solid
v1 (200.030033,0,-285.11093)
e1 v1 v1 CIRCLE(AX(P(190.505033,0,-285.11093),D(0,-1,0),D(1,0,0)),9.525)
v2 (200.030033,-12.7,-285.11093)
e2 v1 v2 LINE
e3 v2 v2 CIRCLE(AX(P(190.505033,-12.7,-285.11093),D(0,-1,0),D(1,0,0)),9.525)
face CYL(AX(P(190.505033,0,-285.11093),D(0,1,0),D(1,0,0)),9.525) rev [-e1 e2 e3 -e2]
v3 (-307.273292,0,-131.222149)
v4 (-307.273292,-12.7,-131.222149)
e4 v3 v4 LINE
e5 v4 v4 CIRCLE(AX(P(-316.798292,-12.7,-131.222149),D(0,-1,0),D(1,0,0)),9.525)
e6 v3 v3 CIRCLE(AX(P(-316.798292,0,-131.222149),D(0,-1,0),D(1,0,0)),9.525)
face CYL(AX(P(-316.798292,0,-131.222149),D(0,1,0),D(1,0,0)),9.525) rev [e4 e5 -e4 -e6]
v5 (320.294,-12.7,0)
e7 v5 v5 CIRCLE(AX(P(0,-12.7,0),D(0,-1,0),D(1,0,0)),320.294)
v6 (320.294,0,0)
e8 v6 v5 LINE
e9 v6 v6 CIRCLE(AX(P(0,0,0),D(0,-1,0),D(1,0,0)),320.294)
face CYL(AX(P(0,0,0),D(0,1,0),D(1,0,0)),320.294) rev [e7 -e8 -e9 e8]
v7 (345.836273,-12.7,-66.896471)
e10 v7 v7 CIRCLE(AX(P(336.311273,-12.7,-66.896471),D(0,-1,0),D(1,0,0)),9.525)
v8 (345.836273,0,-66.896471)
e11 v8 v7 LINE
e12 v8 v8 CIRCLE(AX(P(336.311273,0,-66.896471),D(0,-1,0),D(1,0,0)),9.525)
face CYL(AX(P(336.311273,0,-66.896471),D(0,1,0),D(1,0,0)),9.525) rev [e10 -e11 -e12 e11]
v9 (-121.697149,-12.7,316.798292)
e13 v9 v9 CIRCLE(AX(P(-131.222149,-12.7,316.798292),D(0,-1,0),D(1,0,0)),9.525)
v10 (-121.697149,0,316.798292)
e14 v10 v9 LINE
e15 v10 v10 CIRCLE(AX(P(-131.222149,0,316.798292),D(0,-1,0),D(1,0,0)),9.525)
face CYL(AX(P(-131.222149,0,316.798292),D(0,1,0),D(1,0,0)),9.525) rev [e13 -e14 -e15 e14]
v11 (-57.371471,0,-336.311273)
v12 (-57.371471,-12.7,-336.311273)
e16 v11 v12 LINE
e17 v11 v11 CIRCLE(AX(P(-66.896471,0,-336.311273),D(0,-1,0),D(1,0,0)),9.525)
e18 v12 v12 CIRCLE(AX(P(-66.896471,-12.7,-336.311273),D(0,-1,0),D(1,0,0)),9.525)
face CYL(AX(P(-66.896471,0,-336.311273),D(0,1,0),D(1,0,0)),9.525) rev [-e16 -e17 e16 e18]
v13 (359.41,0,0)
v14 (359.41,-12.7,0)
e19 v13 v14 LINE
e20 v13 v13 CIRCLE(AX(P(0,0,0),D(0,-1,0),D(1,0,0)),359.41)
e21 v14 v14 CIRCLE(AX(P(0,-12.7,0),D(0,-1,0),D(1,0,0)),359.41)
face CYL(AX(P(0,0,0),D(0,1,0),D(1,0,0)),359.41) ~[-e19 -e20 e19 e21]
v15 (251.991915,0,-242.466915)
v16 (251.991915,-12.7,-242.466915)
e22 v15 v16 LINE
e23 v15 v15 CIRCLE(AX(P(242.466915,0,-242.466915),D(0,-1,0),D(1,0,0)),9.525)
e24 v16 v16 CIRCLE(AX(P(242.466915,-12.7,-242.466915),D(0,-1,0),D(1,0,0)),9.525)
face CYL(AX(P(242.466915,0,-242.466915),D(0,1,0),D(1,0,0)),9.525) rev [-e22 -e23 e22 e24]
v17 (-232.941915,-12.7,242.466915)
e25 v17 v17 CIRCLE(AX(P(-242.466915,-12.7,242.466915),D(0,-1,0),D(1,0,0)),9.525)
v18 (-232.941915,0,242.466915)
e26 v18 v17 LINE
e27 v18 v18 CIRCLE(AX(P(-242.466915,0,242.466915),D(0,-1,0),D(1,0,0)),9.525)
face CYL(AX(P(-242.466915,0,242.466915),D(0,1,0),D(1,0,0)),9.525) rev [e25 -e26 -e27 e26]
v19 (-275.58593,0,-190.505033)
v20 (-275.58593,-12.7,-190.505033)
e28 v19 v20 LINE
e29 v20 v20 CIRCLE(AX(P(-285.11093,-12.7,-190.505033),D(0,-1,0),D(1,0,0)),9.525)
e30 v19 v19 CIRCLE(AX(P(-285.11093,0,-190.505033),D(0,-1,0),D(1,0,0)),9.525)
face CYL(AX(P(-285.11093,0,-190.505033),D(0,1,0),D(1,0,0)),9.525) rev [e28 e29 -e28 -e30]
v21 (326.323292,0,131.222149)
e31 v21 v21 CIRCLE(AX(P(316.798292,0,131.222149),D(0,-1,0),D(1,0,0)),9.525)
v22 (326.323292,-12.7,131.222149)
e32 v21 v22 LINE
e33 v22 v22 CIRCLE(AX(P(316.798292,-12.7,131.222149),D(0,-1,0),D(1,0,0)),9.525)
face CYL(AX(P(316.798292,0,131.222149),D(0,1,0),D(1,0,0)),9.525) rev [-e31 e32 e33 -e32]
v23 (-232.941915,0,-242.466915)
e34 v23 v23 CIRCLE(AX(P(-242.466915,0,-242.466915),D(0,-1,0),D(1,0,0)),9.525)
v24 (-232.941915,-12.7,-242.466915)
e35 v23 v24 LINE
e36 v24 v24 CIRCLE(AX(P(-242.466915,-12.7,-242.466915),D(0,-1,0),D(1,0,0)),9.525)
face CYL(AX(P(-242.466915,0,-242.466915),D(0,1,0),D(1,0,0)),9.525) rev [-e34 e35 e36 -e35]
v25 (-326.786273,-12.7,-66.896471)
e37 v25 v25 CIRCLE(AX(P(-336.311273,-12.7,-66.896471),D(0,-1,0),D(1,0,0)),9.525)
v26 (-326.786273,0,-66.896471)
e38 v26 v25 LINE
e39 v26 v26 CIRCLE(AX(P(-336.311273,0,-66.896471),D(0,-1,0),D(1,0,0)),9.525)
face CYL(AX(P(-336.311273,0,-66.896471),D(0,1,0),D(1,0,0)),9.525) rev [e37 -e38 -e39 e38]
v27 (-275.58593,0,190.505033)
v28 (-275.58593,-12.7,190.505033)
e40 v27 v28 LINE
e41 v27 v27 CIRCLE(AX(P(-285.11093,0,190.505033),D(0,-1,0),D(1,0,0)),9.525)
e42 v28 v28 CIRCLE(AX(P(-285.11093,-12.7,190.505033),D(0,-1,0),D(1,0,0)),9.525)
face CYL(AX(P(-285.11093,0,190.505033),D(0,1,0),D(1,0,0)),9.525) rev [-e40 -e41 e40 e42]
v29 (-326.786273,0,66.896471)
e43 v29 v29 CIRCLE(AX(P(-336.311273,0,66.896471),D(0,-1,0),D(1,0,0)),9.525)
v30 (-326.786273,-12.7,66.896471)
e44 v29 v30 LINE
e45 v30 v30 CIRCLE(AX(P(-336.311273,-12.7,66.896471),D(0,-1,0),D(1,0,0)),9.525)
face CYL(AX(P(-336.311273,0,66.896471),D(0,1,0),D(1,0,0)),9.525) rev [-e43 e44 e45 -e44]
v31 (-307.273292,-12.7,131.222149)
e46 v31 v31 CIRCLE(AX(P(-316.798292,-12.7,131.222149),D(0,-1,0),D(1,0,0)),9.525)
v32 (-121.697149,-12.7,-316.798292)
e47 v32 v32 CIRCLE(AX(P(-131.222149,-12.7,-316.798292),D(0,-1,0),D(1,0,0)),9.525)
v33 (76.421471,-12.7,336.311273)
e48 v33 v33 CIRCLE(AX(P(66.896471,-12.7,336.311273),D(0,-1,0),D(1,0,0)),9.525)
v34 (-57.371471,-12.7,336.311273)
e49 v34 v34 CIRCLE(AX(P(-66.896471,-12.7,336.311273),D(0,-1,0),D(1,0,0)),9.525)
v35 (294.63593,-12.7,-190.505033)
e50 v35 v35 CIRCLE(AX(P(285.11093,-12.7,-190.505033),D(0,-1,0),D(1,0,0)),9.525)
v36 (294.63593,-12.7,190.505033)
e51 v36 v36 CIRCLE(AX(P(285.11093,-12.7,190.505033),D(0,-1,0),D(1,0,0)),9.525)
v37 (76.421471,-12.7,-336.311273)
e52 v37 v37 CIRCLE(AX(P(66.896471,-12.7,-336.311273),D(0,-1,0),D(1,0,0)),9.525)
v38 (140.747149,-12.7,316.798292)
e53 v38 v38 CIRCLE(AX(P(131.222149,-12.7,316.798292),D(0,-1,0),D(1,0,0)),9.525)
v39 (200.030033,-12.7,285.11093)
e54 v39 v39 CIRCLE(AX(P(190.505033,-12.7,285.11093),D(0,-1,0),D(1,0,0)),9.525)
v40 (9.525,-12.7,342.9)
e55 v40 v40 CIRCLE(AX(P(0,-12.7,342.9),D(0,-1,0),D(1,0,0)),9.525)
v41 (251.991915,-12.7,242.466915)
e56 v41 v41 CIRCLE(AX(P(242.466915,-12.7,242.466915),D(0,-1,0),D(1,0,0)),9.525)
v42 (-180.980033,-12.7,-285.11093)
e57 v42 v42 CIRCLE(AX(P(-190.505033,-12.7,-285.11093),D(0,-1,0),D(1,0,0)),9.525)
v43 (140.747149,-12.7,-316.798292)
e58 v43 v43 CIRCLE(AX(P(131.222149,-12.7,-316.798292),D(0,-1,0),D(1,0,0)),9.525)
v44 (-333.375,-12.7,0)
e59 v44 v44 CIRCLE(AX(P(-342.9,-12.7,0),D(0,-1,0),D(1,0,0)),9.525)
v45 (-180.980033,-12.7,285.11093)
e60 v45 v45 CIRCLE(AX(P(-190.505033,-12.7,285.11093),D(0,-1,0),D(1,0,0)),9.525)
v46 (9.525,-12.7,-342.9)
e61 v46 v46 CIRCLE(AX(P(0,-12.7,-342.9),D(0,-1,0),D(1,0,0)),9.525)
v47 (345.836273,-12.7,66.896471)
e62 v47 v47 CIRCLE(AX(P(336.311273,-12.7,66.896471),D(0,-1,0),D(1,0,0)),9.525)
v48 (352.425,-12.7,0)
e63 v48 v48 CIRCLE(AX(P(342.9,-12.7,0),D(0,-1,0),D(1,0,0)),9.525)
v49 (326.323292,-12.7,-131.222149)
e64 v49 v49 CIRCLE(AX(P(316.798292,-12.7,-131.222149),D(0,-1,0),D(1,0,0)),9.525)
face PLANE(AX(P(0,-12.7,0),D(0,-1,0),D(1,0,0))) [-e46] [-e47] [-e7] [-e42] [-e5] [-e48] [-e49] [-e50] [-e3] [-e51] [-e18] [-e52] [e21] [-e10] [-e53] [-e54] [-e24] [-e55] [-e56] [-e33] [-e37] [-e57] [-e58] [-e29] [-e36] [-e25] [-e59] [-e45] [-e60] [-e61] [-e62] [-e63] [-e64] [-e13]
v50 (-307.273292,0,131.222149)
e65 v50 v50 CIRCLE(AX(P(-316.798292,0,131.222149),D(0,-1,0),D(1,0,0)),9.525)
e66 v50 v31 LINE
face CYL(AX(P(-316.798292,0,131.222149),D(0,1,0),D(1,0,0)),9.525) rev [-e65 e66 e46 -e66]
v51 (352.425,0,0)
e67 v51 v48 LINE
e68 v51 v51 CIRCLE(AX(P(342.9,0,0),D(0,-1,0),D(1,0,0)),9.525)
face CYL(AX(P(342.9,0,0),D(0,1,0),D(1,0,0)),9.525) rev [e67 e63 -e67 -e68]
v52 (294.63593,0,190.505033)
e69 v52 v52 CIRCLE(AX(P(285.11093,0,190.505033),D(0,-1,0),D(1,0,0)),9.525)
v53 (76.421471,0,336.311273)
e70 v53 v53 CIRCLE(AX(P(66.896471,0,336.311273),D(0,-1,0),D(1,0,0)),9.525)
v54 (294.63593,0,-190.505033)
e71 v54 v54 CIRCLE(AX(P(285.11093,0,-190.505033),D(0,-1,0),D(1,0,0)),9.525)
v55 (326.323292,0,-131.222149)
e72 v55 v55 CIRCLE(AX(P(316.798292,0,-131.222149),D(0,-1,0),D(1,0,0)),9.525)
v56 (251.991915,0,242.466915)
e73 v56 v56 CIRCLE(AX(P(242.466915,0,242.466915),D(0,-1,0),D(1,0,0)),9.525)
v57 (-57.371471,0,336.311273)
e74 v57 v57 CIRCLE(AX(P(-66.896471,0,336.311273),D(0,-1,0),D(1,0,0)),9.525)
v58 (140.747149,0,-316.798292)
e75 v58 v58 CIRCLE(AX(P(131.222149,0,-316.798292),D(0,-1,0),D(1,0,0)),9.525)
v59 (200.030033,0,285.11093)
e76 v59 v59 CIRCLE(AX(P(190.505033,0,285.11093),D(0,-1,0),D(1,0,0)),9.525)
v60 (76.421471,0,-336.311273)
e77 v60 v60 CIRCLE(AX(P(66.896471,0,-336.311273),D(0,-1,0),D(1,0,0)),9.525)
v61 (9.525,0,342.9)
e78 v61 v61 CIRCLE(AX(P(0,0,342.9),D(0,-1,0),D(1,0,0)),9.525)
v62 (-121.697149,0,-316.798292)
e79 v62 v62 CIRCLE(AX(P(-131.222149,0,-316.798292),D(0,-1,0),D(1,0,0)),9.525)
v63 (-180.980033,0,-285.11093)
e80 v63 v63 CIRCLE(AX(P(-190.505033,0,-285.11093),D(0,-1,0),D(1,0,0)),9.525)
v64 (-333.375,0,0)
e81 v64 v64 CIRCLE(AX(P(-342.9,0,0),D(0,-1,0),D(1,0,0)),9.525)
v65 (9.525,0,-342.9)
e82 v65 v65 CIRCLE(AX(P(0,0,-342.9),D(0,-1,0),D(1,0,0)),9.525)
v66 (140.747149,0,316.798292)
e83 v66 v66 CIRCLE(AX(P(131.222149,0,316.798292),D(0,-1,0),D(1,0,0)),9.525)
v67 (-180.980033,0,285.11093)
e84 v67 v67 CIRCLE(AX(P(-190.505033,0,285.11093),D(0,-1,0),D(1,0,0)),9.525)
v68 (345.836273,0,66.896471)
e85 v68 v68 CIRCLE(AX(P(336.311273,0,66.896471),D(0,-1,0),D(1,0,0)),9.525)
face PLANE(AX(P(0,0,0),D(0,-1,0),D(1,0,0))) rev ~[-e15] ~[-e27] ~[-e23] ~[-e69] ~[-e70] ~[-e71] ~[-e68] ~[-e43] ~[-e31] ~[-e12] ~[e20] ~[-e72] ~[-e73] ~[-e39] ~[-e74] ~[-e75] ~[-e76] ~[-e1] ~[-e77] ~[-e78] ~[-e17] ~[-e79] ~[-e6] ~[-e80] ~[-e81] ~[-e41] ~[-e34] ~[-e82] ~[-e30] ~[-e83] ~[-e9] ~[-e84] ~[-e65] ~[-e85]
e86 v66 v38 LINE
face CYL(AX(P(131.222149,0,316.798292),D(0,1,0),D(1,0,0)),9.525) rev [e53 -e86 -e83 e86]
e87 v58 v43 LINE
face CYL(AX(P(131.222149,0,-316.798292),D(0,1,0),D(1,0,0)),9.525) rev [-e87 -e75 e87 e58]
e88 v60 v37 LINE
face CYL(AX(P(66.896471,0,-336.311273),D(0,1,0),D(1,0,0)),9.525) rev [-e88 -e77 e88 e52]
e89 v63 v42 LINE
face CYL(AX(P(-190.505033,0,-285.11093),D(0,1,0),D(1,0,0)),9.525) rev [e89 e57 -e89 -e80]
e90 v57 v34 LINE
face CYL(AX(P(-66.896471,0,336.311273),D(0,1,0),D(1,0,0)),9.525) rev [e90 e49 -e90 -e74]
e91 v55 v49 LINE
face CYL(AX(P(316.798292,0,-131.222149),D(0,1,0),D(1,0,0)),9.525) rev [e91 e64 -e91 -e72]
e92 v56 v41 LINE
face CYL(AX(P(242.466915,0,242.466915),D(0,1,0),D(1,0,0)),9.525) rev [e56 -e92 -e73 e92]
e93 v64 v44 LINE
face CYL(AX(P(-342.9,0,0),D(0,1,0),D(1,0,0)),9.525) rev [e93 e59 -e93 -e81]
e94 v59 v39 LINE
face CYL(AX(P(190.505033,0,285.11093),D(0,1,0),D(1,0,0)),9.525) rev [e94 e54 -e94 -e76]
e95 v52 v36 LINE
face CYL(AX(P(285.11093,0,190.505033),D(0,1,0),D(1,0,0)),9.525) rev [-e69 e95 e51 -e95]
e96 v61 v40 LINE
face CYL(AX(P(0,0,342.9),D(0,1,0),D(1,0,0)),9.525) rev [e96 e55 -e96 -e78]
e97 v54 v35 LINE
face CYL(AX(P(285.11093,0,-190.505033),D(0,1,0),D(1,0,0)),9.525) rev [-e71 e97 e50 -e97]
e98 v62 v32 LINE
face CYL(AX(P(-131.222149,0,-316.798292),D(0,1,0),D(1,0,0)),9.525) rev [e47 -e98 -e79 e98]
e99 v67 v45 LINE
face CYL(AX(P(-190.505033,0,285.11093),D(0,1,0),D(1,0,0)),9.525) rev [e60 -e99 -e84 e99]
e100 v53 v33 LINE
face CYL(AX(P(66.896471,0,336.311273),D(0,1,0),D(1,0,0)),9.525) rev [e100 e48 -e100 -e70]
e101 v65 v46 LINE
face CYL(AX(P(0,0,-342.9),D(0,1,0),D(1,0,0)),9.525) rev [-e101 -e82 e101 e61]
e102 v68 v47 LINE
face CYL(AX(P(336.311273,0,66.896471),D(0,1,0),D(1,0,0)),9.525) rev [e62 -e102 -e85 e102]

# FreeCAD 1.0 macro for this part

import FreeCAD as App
import Part
import Sketcher

V = App.Vector
Q = App.Units.Quantity

doc = App.newDocument("Part")
body = doc.addObject("PartDesign::Body", "Body")

# Sketch on XZ plane
sketch1 = body.newObject("Sketcher::SketchObject", "Sketch")
sketch1.AttachmentSupport = (doc.getObject("XZ_Plane"), [""])
sketch1.MapMode = "FlatFace"
sketch1.addGeometry([
    Part.Circle(V(0, 0, 0), V(0, 0, 1), 359),  # 0
    Part.Circle(V(-191, -285, 0), V(0, 0, 1), 10),  # 1
    Part.Circle(V(-285, -191, 0), V(0, 0, 1), 10),  # 2
    Part.Circle(V(-242, -242, 0), V(0, 0, 1), 10),  # 3
    Part.Circle(V(-131, -317, 0), V(0, 0, 1), 10),  # 4
    Part.Circle(V(-67, -336, 0), V(0, 0, 1), 10),  # 5
    Part.Circle(V(-317, -131, 0), V(0, 0, 1), 10),  # 6
    Part.Circle(V(-336, -67, 0), V(0, 0, 1), 10),  # 7
    Part.Circle(V(0, -343, 0), V(0, 0, 1), 10),  # 8
    Part.Circle(V(67, -336, 0), V(0, 0, 1), 10),  # 9
    Part.Circle(V(131, -317, 0), V(0, 0, 1), 10),  # 10
    Part.Circle(V(191, -285, 0), V(0, 0, 1), 10),  # 11
    Part.Circle(V(242, -242, 0), V(0, 0, 1), 10),  # 12
    Part.Circle(V(285, -191, 0), V(0, 0, 1), 10),  # 13
    Part.Circle(V(317, -131, 0), V(0, 0, 1), 10),  # 14
    Part.Circle(V(336, -67, 0), V(0, 0, 1), 10),  # 15
    Part.Circle(V(-343, 0, 0), V(0, 0, 1), 10),  # 16
    Part.Circle(V(-336, 67, 0), V(0, 0, 1), 10),  # 17
    Part.Circle(V(-317, 131, 0), V(0, 0, 1), 10),  # 18
    Part.Circle(V(-285, 191, 0), V(0, 0, 1), 10),  # 19
    Part.Circle(V(-242, 242, 0), V(0, 0, 1), 10),  # 20
    Part.Circle(V(-191, 285, 0), V(0, 0, 1), 10),  # 21
    Part.Circle(V(-131, 317, 0), V(0, 0, 1), 10),  # 22
    Part.Circle(V(-67, 336, 0), V(0, 0, 1), 10),  # 23
    Part.Circle(V(0, 0, 0), V(0, 0, 1), 320),  # 24
    Part.Circle(V(343, 0, 0), V(0, 0, 1), 10),  # 25
    Part.Circle(V(336, 67, 0), V(0, 0, 1), 10),  # 26
    Part.Circle(V(317, 131, 0), V(0, 0, 1), 10),  # 27
    Part.Circle(V(0, 343, 0), V(0, 0, 1), 10),  # 28
    Part.Circle(V(67, 336, 0), V(0, 0, 1), 10),  # 29
    Part.Circle(V(131, 317, 0), V(0, 0, 1), 10),  # 30
    Part.Circle(V(242, 242, 0), V(0, 0, 1), 10),  # 31
    Part.Circle(V(285, 191, 0), V(0, 0, 1), 10),  # 32
    Part.Circle(V(191, 285, 0), V(0, 0, 1), 10),  # 33
], False)
sketch1.addConstraint([
    Sketcher.Constraint("Coincident", 0, 3, -1, 1),
    Sketcher.Constraint("Coincident", 24, 3, -1, 1),
    Sketcher.Constraint("Equal", 1, 2),
    Sketcher.Constraint("Equal", 2, 3),
    Sketcher.Constraint("Equal", 3, 4),
    Sketcher.Constraint("Equal", 4, 5),
    Sketcher.Constraint("Equal", 5, 6),
    Sketcher.Constraint("Equal", 6, 7),
    Sketcher.Constraint("Equal", 7, 8),
    Sketcher.Constraint("Equal", 8, 9),
    Sketcher.Constraint("Equal", 9, 10),
    Sketcher.Constraint("Equal", 10, 11),
    Sketcher.Constraint("Equal", 11, 12),
    Sketcher.Constraint("Equal", 12, 13),
    Sketcher.Constraint("Equal", 13, 14),
    Sketcher.Constraint("Equal", 14, 15),
    Sketcher.Constraint("Equal", 15, 16),
    Sketcher.Constraint("Equal", 16, 17),
    Sketcher.Constraint("Equal", 17, 18),
    Sketcher.Constraint("Equal", 18, 19),
    Sketcher.Constraint("Equal", 19, 20),
    Sketcher.Constraint("Equal", 20, 21),
    Sketcher.Constraint("Equal", 21, 22),
    Sketcher.Constraint("Equal", 22, 23),
    Sketcher.Constraint("Equal", 23, 25),
    Sketcher.Constraint("Equal", 25, 26),
    Sketcher.Constraint("Equal", 26, 27),
    Sketcher.Constraint("Equal", 27, 28),
    Sketcher.Constraint("Equal", 28, 29),
    Sketcher.Constraint("Equal", 29, 30),
    Sketcher.Constraint("Equal", 30, 31),
    Sketcher.Constraint("Equal", 31, 32),
    Sketcher.Constraint("Equal", 32, 33),
    Sketcher.Constraint("Symmetric", 15, 3, 17, 3, -1, 1),
    Sketcher.Constraint("Symmetric", 14, 3, 18, 3, -1, 1),
    Sketcher.Constraint("Symmetric", 13, 3, 19, 3, -1, 1),
    Sketcher.Constraint("Symmetric", 12, 3, 20, 3, -1, 1),
    Sketcher.Constraint("Symmetric", 11, 3, 21, 3, -1, 1),
    Sketcher.Constraint("Symmetric", 10, 3, 22, 3, -1, 1),
    Sketcher.Constraint("Symmetric", 9, 3, 23, 3, -1, 1),
    Sketcher.Constraint("Symmetric", 16, 3, 25, 3, -1, 1),
    Sketcher.Constraint("Symmetric", 7, 3, 26, 3, -1, 1),
    Sketcher.Constraint("Symmetric", 6, 3, 27, 3, -1, 1),
    Sketcher.Constraint("Symmetric", 8, 3, 28, 3, -1, 1),
    Sketcher.Constraint("Symmetric", 5, 3, 29, 3, -1, 1),
    Sketcher.Constraint("Symmetric", 4, 3, 30, 3, -1, 1),
    Sketcher.Constraint("Symmetric", 3, 3, 31, 3, -1, 1),
    Sketcher.Constraint("Symmetric", 2, 3, 32, 3, -1, 1),
    Sketcher.Constraint("Symmetric", 1, 3, 33, 3, -1, 1),
    Sketcher.Constraint("Symmetric", 5, 3, 9, 3, -2),
    Sketcher.Constraint("Symmetric", 4, 3, 10, 3, -2),
    Sketcher.Constraint("Symmetric", 1, 3, 11, 3, -2),
    Sketcher.Constraint("Symmetric", 3, 3, 12, 3, -2),
    Sketcher.Constraint("Symmetric", 2, 3, 13, 3, -2),
    Sketcher.Constraint("Symmetric", 6, 3, 14, 3, -2),
    Sketcher.Constraint("Symmetric", 7, 3, 15, 3, -2),
    Sketcher.Constraint("PointOnObject", 8, 3, -2),
    Sketcher.Constraint("PointOnObject", 16, 3, -1),
    Sketcher.Constraint("Diameter", 0, Q("28.3 in")),
    Sketcher.Constraint("Diameter", 1, Q("0.75 in")),
    Sketcher.Constraint("Diameter", 24, Q("25.22 in")),
    Sketcher.Constraint("DistanceY", 8, 3, -1, 1, Q("13.5 in")),
    Sketcher.Constraint("DistanceX", 16, 3, -1, 1, Q("13.5 in")),
    Sketcher.Constraint("DistanceX", 4, 3, 10, 3, Q("262.444298 mm")),
    Sketcher.Constraint("DistanceY", 6, 3, 18, 3, Q("262.444298 mm")),
    Sketcher.Constraint("DistanceY", 1, 3, -1, 1, Q("285.11093 mm")),
    Sketcher.Constraint("DistanceX", 2, 3, -1, 1, Q("285.11093 mm")),
    Sketcher.Constraint("DistanceY", 4, 3, -1, 1, Q("316.798292 mm")),
    Sketcher.Constraint("DistanceX", 5, 3, -1, 1, Q("66.896471 mm")),
    Sketcher.Constraint("DistanceX", 6, 3, -1, 1, Q("316.798292 mm")),
    Sketcher.Constraint("DistanceY", 7, 3, -1, 1, Q("66.896471 mm")),
    Sketcher.Constraint("DistanceY", 4, 3, 2, 3, Q("126.293259 mm")),
    Sketcher.Constraint("DistanceY", 5, 3, 4, 3, Q("19.512981 mm")),
    Sketcher.Constraint("DistanceX", 1, 3, 5, 3, Q("123.608562 mm")),
    Sketcher.Constraint("DistanceY", 5, 3, 3, 3, Q("93.844358 mm")),
    Sketcher.Constraint("DistanceX", 7, 3, 6, 3, Q("19.512981 mm")),
    Sketcher.Constraint("DistanceX", 7, 3, 3, 3, Q("93.844358 mm")),
])
pad1 = body.newObject("PartDesign::Pad", "Pad")
pad1.Profile = sketch1
pad1.Length = Q("0.5 in")

doc.recompute()
